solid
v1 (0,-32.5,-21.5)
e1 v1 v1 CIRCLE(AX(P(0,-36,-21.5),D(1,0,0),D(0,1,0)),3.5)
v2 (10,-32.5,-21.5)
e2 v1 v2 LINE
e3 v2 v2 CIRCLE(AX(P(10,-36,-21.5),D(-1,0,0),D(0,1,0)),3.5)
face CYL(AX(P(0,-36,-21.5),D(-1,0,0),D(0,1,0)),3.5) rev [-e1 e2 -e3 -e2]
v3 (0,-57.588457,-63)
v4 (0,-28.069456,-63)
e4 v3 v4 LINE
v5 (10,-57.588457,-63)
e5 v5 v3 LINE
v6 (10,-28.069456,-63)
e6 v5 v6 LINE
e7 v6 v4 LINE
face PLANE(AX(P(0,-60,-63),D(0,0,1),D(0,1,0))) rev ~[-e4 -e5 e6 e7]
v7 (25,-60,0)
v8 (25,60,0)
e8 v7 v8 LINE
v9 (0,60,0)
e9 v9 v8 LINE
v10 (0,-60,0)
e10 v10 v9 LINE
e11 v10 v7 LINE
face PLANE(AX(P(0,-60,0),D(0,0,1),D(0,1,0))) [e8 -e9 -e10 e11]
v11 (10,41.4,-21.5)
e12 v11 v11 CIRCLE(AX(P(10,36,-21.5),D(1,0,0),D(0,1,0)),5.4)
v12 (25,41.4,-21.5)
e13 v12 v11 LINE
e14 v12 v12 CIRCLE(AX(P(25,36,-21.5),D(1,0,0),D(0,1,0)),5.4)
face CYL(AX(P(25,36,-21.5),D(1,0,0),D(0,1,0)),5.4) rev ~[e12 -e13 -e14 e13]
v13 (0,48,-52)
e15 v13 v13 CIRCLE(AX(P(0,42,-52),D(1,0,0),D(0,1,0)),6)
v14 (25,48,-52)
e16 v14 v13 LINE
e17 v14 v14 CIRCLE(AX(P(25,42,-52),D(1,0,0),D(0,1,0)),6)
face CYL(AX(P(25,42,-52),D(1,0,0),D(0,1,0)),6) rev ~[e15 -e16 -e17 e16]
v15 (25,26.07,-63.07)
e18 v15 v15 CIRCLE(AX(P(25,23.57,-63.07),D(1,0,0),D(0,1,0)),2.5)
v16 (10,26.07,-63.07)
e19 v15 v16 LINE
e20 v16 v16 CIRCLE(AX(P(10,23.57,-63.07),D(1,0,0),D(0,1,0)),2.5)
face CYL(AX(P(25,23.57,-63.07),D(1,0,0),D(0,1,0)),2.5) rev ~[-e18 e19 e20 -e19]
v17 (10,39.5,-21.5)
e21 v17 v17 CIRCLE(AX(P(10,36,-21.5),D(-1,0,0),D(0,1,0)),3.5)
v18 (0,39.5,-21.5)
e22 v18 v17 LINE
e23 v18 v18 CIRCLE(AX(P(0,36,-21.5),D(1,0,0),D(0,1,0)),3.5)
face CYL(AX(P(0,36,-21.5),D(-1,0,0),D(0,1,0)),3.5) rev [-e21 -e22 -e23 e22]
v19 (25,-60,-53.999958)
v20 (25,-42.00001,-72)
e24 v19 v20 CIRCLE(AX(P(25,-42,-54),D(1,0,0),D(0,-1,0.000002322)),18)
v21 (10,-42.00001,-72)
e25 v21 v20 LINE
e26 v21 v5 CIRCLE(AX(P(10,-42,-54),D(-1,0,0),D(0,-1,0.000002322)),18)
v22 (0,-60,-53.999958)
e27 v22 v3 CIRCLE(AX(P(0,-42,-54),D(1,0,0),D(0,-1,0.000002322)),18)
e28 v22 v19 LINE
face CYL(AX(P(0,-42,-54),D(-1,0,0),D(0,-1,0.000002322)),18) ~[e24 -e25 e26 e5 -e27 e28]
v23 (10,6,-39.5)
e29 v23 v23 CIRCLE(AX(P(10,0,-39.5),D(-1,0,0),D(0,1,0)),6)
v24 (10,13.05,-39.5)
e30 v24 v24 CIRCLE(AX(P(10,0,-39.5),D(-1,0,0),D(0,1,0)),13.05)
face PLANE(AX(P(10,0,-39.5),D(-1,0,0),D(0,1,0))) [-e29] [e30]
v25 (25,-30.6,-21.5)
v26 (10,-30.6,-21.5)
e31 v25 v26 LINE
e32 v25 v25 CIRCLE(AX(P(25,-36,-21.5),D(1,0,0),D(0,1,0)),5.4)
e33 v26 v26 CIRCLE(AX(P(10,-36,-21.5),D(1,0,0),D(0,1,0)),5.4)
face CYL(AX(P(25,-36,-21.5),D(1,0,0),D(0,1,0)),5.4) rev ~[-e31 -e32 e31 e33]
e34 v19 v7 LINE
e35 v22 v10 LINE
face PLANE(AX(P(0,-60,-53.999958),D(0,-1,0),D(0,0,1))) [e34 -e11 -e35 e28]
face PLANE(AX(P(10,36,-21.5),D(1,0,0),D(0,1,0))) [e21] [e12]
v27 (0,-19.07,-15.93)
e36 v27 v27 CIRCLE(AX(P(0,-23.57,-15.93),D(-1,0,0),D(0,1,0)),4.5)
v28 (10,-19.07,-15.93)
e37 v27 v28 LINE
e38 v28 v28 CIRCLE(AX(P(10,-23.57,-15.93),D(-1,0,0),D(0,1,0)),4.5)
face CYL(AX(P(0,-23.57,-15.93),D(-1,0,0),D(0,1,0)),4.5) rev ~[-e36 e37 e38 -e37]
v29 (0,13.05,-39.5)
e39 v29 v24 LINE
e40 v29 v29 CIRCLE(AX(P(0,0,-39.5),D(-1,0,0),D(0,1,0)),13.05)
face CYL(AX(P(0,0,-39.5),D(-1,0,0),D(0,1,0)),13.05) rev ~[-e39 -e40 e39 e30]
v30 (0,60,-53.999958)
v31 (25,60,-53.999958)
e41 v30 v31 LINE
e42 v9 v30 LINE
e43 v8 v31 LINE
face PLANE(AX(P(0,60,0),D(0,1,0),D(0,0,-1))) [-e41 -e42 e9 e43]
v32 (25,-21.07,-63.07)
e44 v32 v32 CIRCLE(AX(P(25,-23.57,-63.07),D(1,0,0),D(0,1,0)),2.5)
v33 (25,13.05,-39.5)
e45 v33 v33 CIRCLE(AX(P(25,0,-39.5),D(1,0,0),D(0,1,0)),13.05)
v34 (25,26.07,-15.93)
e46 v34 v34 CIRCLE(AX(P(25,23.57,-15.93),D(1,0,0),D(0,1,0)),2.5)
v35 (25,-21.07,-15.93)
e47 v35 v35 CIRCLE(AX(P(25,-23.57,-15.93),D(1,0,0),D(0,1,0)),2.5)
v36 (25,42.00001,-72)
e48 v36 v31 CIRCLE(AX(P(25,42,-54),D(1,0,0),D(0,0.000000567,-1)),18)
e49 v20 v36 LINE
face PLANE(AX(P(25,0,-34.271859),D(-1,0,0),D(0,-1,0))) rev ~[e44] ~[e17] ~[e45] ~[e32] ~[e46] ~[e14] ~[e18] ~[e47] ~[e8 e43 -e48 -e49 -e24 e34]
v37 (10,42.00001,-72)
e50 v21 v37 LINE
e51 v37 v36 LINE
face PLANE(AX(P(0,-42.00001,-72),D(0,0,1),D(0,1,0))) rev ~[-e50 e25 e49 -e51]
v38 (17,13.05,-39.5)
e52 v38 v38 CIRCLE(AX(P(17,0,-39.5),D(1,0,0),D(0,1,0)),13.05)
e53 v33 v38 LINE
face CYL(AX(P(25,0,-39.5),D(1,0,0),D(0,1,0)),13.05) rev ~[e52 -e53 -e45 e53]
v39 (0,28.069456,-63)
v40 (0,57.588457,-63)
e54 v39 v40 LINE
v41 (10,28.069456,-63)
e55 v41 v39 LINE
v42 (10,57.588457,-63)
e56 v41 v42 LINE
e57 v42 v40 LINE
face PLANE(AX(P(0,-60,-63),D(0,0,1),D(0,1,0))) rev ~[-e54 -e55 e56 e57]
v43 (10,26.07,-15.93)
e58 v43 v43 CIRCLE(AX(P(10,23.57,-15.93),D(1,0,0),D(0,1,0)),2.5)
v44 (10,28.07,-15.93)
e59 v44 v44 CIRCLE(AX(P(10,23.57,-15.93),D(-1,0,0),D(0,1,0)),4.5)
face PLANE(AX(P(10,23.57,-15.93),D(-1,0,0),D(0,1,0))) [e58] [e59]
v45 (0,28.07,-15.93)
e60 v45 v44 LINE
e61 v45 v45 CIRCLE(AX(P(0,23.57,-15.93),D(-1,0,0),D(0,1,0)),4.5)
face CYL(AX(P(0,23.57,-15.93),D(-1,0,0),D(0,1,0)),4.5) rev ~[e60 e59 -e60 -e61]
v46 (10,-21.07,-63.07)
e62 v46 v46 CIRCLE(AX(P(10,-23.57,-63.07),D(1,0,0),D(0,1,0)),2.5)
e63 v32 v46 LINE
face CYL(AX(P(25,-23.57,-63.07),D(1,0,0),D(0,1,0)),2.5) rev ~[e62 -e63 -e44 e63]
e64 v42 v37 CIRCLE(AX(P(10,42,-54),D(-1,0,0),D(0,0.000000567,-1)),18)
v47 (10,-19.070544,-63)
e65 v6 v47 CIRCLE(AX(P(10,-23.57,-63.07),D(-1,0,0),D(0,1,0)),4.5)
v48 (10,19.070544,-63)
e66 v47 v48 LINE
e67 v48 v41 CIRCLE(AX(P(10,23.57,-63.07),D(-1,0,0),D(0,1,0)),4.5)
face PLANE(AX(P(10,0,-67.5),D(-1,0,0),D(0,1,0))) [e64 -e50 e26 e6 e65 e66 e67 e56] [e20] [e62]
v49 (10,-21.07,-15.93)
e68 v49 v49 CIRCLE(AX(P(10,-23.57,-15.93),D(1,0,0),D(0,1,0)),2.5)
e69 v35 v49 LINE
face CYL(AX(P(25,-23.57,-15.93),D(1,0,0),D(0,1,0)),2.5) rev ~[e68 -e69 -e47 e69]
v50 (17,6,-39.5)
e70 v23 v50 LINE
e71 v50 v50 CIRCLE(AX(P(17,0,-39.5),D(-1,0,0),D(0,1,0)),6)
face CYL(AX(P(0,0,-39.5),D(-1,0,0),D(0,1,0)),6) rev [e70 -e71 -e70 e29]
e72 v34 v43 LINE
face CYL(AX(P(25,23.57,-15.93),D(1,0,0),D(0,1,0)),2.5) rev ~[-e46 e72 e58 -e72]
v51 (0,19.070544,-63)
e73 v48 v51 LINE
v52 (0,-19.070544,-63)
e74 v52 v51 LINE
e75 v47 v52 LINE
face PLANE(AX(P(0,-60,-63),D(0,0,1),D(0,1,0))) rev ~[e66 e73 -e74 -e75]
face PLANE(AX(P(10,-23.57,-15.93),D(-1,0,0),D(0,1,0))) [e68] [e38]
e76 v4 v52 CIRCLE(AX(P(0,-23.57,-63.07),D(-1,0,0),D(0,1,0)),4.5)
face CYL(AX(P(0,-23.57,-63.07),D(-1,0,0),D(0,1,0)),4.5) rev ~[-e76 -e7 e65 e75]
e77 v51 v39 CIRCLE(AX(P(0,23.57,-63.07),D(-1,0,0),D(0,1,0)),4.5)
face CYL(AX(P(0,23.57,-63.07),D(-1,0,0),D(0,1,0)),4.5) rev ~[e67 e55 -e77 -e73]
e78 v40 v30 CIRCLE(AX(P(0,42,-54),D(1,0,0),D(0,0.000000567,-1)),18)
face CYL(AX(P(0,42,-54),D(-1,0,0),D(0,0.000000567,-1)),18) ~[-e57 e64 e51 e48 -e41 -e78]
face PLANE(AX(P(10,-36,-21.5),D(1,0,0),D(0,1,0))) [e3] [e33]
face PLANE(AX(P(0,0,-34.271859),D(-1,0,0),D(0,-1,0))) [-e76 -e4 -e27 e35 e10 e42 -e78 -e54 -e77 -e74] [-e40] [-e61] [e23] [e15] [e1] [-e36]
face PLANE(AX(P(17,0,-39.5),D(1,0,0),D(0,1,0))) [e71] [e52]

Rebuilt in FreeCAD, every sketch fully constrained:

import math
import FreeCAD as App
import Part
import Sketcher
Q = App.Units.Quantity

doc = App.newDocument("Part")
body = doc.addObject("PartDesign::Body", "Body")

sketch1 = body.newObject("Sketcher::SketchObject", "Sketch")
sketch1.AttachmentSupport = (doc.getObject("YZ_Plane"), [""])
sketch1.MapMode = "FlatFace"
sketch1.addGeometry(Part.LineSegment(App.Vector(-60, 0, 0), App.Vector(-60, -53.999958, 0)), False)
sketch1.addGeometry(Part.ArcOfCircle(Part.Circle(App.Vector(-42, -54, 0), App.Vector(0, 0, 1), 18), math.radians(179.999867), math.radians(269.999968)), False)
sketch1.addGeometry(Part.LineSegment(App.Vector(-42.00001, -72, 0), App.Vector(42.00001, -72, 0)), False)
sketch1.addGeometry(Part.ArcOfCircle(Part.Circle(App.Vector(42, -54, 0), App.Vector(0, 0, 1), 18), math.radians(-89.999968), math.radians(0.000133)), False)
sketch1.addGeometry(Part.LineSegment(App.Vector(60, -53.999958, 0), App.Vector(60, 0, 0)), False)
sketch1.addGeometry(Part.LineSegment(App.Vector(60, 0, 0), App.Vector(-60, 0, 0)), False)
sketch1.addGeometry(Part.Circle(App.Vector(0, -39.5, 0), App.Vector(0, 0, 1), 6), False)
sketch1.addGeometry(Part.Circle(App.Vector(36, -21.5, 0), App.Vector(0, 0, 1), 3.5), False)
sketch1.addGeometry(Part.Circle(App.Vector(-36, -21.5, 0), App.Vector(0, 0, 1), 3.5), False)
sketch1.addConstraint(Sketcher.Constraint("Coincident", 0, 2, 1, 1))
sketch1.addConstraint(Sketcher.Constraint("Tangent", 1, 2, 2, 1))
sketch1.addConstraint(Sketcher.Constraint("Tangent", 2, 2, 3, 1))
sketch1.addConstraint(Sketcher.Constraint("Coincident", 3, 2, 4, 1))
sketch1.addConstraint(Sketcher.Constraint("Coincident", 4, 2, 5, 1))
sketch1.addConstraint(Sketcher.Constraint("Coincident", 5, 2, 0, 1))
sketch1.addConstraint(Sketcher.Constraint("Vertical", 0))
sketch1.addConstraint(Sketcher.Constraint("Horizontal", 2))
sketch1.addConstraint(Sketcher.Constraint("Vertical", 4))
sketch1.addConstraint(Sketcher.Constraint("Horizontal", 5))
sketch1.addConstraint(Sketcher.Constraint("Equal", 1, 3))
sketch1.addConstraint(Sketcher.Constraint("Equal", 7, 8))
sketch1.addConstraint(Sketcher.Constraint("Symmetric", 4, 2, 5, 2, -1, 1))
sketch1.addConstraint(Sketcher.Constraint("Symmetric", 7, 3, 8, 3, -2))
sketch1.addConstraint(Sketcher.Constraint("PointOnObject", 6, 3, -2))
sketch1.addConstraint(Sketcher.Constraint("Horizontal", 0, 2, 3, 2))
sketch1.addConstraint(Sketcher.Constraint("Diameter", 6, Q("12 mm")))
sketch1.addConstraint(Sketcher.Constraint("Diameter", 7, Q("7 mm")))
sketch1.addConstraint(Sketcher.Constraint("Radius", 1, Q("18 mm")))
sketch1.addConstraint(Sketcher.Constraint("DistanceX", 5, 2, 5, 1, Q("120 mm")))
sketch1.addConstraint(Sketcher.Constraint("DistanceY", 1, 3, -1, 1, Q("54 mm")))
sketch1.addConstraint(Sketcher.Constraint("DistanceX", -1, 1, 7, 3, Q("36 mm")))
sketch1.addConstraint(Sketcher.Constraint("DistanceY", 6, 3, 7, 3, Q("18 mm")))
sketch1.addConstraint(Sketcher.Constraint("DistanceY", 6, 3, -1, 1, Q("39.5 mm")))
sketch1.addConstraint(Sketcher.Constraint("DistanceY", 0, 2, 0, 1, Q("53.999958 mm")))
pad1 = body.newObject("PartDesign::Pad", "Pad")
pad1.Profile = sketch1
pad1.Length = 25

sketch2 = body.newObject("Sketcher::SketchObject", "Sketch001")
sketch2.AttachmentSupport = (doc.getObject("YZ_Plane"), [""])
sketch2.MapMode = "FlatFace"
sketch2.AttachmentOffset = App.Placement(App.Vector(0, 0, 25), App.Rotation())
sketch2.addGeometry(Part.Circle(App.Vector(-36, -22, 0), App.Vector(0, 0, 1), 5), False)
sketch2.addGeometry(Part.Circle(App.Vector(36, -22, 0), App.Vector(0, 0, 1), 5), False)
sketch2.addConstraint(Sketcher.Constraint("Equal", 0, 1))
sketch2.addConstraint(Sketcher.Constraint("Symmetric", 0, 3, 1, 3, -2))
sketch2.addConstraint(Sketcher.Constraint("Diameter", 0, Q("10.8 mm")))
sketch2.addConstraint(Sketcher.Constraint("DistanceX", 0, 3, -1, 1, Q("36 mm")))
sketch2.addConstraint(Sketcher.Constraint("DistanceY", 0, 3, -1, 1, Q("21.5 mm")))
pocket1 = body.newObject("PartDesign::Pocket", "Pocket")
pocket1.Profile = sketch2
pocket1.Length = 15

sketch3 = body.newObject("Sketcher::SketchObject", "Sketch002")
sketch3.AttachmentSupport = (doc.getObject("YZ_Plane"), [""])
sketch3.MapMode = "FlatFace"
sketch3.addGeometry(Part.Circle(App.Vector(0, -40, 0), App.Vector(0, 0, 1), 13), False)
sketch3.addConstraint(Sketcher.Constraint("PointOnObject", 0, 3, -2))
sketch3.addConstraint(Sketcher.Constraint("Diameter", 0, Q("26.1 mm")))
sketch3.addConstraint(Sketcher.Constraint("DistanceY", 0, 3, -1, 1, Q("39.5 mm")))
pocket2 = body.newObject("PartDesign::Pocket", "Pocket001")
pocket2.Profile = sketch3
pocket2.Length = 10
pocket2.Reversed = True

sketch4 = body.newObject("Sketcher::SketchObject", "Sketch003")
sketch4.AttachmentSupport = (doc.getObject("YZ_Plane"), [""])
sketch4.MapMode = "FlatFace"
sketch4.AttachmentOffset = App.Placement(App.Vector(0, 0, 25), App.Rotation())
sketch4.addGeometry(Part.Circle(App.Vector(-23.6, -15.9, 0), App.Vector(0, 0, 1), 2.5), False)
sketch4.addGeometry(Part.Circle(App.Vector(23.6, -15.9, 0), App.Vector(0, 0, 1), 2.5), False)
sketch4.addGeometry(Part.Circle(App.Vector(-23.6, -63.1, 0), App.Vector(0, 0, 1), 2.5), False)
sketch4.addGeometry(Part.Circle(App.Vector(23.6, -63.1, 0), App.Vector(0, 0, 1), 2.5), False)
sketch4.addGeometry(Part.Circle(App.Vector(42, -52, 0), App.Vector(0, 0, 1), 6), False)
sketch4.addConstraint(Sketcher.Constraint("Equal", 0, 1))
sketch4.addConstraint(Sketcher.Constraint("Equal", 1, 2))
sketch4.addConstraint(Sketcher.Constraint("Equal", 2, 3))
sketch4.addConstraint(Sketcher.Constraint("Symmetric", 0, 3, 1, 3, -2))
sketch4.addConstraint(Sketcher.Constraint("Symmetric", 2, 3, 3, 3, -2))
sketch4.addConstraint(Sketcher.Constraint("Vertical", 0, 3, 2, 3))
sketch4.addConstraint(Sketcher.Constraint("Diameter", 0, Q("5 mm")))
sketch4.addConstraint(Sketcher.Constraint("Diameter", 4, Q("12 mm")))
sketch4.addConstraint(Sketcher.Constraint("DistanceX", -1, 1, 4, 3, Q("42 mm")))
sketch4.addConstraint(Sketcher.Constraint("DistanceY", 4, 3, -1, 1, Q("52 mm")))
sketch4.addConstraint(Sketcher.Constraint("DistanceX", 0, 3, -1, 1, Q("23.57 mm")))
sketch4.addConstraint(Sketcher.Constraint("DistanceY", 0, 3, -1, 1, Q("15.93 mm")))
sketch4.addConstraint(Sketcher.Constraint("DistanceY", 2, 3, -1, 1, Q("63.07 mm")))
pocket3 = body.newObject("PartDesign::Pocket", "Pocket002")
pocket3.Profile = sketch4
pocket3.Length = 25

sketch5 = body.newObject("Sketcher::SketchObject", "Sketch004")
sketch5.AttachmentSupport = (doc.getObject("YZ_Plane"), [""])
sketch5.MapMode = "FlatFace"
sketch5.addGeometry(Part.Circle(App.Vector(-23.6, -63.1, 0), App.Vector(0, 0, 1), 4.5), False)
sketch5.addGeometry(Part.Circle(App.Vector(23.6, -63.1, 0), App.Vector(0, 0, 1), 4.5), False)
sketch5.addGeometry(Part.Circle(App.Vector(-23.6, -15.9, 0), App.Vector(0, 0, 1), 4.5), False)
sketch5.addGeometry(Part.Circle(App.Vector(23.6, -15.9, 0), App.Vector(0, 0, 1), 4.5), False)
sketch5.addConstraint(Sketcher.Constraint("Equal", 0, 1))
sketch5.addConstraint(Sketcher.Constraint("Equal", 1, 2))
sketch5.addConstraint(Sketcher.Constraint("Equal", 2, 3))
sketch5.addConstraint(Sketcher.Constraint("Symmetric", 0, 3, 1, 3, -2))
sketch5.addConstraint(Sketcher.Constraint("Symmetric", 2, 3, 3, 3, -2))
sketch5.addConstraint(Sketcher.Constraint("Vertical", 0, 3, 2, 3))
sketch5.addConstraint(Sketcher.Constraint("Diameter", 0, Q("9 mm")))
sketch5.addConstraint(Sketcher.Constraint("DistanceX", 0, 3, -1, 1, Q("23.57 mm")))
sketch5.addConstraint(Sketcher.Constraint("DistanceY", 0, 3, -1, 1, Q("63.07 mm")))
sketch5.addConstraint(Sketcher.Constraint("DistanceY", 2, 3, -1, 1, Q("15.93 mm")))
pocket4 = body.newObject("PartDesign::Pocket", "Pocket003")
pocket4.Profile = sketch5
pocket4.Length = 10
pocket4.Reversed = True

sketch6 = body.newObject("Sketcher::SketchObject", "Sketch005")
sketch6.AttachmentSupport = (doc.getObject("YZ_Plane"), [""])
sketch6.MapMode = "FlatFace"
sketch6.AttachmentOffset = App.Placement(App.Vector(0, 0, 25), App.Rotation())
sketch6.addGeometry(Part.Circle(App.Vector(0, -40, 0), App.Vector(0, 0, 1), 13), False)
sketch6.addConstraint(Sketcher.Constraint("PointOnObject", 0, 3, -2))
sketch6.addConstraint(Sketcher.Constraint("Diameter", 0, Q("26.1 mm")))
sketch6.addConstraint(Sketcher.Constraint("DistanceY", 0, 3, -1, 1, Q("39.5 mm")))
pocket5 = body.newObject("PartDesign::Pocket", "Pocket004")
pocket5.Profile = sketch6
pocket5.Length = 8

sketch7 = body.newObject("Sketcher::SketchObject", "Sketch006")
sketch7.AttachmentSupport = (doc.getObject("YZ_Plane"), [""])
sketch7.MapMode = "FlatFace"
sketch7.addGeometry(Part.LineSegment(App.Vector(-60, -72, 0), App.Vector(-60, -63, 0)), False)
sketch7.addGeometry(Part.LineSegment(App.Vector(-60, -63, 0), App.Vector(60, -63, 0)), False)
sketch7.addGeometry(Part.LineSegment(App.Vector(60, -63, 0), App.Vector(60, -72, 0)), False)
sketch7.addGeometry(Part.LineSegment(App.Vector(60, -72, 0), App.Vector(-60, -72, 0)), False)
sketch7.addConstraint(Sketcher.Constraint("Coincident", 0, 2, 1, 1))
sketch7.addConstraint(Sketcher.Constraint("Coincident", 1, 2, 2, 1))
sketch7.addConstraint(Sketcher.Constraint("Coincident", 2, 2, 3, 1))
sketch7.addConstraint(Sketcher.Constraint("Coincident", 3, 2, 0, 1))
sketch7.addConstraint(Sketcher.Constraint("Vertical", 0))
sketch7.addConstraint(Sketcher.Constraint("Horizontal", 1))
sketch7.addConstraint(Sketcher.Constraint("Vertical", 2))
sketch7.addConstraint(Sketcher.Constraint("Horizontal", 3))
sketch7.addConstraint(Sketcher.Constraint("DistanceX", 1, 1, 1, 2, Q("120 mm")))
sketch7.addConstraint(Sketcher.Constraint("DistanceY", 0, 1, 0, 2, Q("9 mm")))
sketch7.addConstraint(Sketcher.Constraint("DistanceX", 0, 2, -1, 1, Q("60 mm")))
sketch7.addConstraint(Sketcher.Constraint("DistanceY", 0, 2, -1, 1, Q("63 mm")))
pocket6 = body.newObject("PartDesign::Pocket", "Pocket005")
pocket6.Profile = sketch7
pocket6.Length = 10
pocket6.Reversed = True

doc.recompute()
